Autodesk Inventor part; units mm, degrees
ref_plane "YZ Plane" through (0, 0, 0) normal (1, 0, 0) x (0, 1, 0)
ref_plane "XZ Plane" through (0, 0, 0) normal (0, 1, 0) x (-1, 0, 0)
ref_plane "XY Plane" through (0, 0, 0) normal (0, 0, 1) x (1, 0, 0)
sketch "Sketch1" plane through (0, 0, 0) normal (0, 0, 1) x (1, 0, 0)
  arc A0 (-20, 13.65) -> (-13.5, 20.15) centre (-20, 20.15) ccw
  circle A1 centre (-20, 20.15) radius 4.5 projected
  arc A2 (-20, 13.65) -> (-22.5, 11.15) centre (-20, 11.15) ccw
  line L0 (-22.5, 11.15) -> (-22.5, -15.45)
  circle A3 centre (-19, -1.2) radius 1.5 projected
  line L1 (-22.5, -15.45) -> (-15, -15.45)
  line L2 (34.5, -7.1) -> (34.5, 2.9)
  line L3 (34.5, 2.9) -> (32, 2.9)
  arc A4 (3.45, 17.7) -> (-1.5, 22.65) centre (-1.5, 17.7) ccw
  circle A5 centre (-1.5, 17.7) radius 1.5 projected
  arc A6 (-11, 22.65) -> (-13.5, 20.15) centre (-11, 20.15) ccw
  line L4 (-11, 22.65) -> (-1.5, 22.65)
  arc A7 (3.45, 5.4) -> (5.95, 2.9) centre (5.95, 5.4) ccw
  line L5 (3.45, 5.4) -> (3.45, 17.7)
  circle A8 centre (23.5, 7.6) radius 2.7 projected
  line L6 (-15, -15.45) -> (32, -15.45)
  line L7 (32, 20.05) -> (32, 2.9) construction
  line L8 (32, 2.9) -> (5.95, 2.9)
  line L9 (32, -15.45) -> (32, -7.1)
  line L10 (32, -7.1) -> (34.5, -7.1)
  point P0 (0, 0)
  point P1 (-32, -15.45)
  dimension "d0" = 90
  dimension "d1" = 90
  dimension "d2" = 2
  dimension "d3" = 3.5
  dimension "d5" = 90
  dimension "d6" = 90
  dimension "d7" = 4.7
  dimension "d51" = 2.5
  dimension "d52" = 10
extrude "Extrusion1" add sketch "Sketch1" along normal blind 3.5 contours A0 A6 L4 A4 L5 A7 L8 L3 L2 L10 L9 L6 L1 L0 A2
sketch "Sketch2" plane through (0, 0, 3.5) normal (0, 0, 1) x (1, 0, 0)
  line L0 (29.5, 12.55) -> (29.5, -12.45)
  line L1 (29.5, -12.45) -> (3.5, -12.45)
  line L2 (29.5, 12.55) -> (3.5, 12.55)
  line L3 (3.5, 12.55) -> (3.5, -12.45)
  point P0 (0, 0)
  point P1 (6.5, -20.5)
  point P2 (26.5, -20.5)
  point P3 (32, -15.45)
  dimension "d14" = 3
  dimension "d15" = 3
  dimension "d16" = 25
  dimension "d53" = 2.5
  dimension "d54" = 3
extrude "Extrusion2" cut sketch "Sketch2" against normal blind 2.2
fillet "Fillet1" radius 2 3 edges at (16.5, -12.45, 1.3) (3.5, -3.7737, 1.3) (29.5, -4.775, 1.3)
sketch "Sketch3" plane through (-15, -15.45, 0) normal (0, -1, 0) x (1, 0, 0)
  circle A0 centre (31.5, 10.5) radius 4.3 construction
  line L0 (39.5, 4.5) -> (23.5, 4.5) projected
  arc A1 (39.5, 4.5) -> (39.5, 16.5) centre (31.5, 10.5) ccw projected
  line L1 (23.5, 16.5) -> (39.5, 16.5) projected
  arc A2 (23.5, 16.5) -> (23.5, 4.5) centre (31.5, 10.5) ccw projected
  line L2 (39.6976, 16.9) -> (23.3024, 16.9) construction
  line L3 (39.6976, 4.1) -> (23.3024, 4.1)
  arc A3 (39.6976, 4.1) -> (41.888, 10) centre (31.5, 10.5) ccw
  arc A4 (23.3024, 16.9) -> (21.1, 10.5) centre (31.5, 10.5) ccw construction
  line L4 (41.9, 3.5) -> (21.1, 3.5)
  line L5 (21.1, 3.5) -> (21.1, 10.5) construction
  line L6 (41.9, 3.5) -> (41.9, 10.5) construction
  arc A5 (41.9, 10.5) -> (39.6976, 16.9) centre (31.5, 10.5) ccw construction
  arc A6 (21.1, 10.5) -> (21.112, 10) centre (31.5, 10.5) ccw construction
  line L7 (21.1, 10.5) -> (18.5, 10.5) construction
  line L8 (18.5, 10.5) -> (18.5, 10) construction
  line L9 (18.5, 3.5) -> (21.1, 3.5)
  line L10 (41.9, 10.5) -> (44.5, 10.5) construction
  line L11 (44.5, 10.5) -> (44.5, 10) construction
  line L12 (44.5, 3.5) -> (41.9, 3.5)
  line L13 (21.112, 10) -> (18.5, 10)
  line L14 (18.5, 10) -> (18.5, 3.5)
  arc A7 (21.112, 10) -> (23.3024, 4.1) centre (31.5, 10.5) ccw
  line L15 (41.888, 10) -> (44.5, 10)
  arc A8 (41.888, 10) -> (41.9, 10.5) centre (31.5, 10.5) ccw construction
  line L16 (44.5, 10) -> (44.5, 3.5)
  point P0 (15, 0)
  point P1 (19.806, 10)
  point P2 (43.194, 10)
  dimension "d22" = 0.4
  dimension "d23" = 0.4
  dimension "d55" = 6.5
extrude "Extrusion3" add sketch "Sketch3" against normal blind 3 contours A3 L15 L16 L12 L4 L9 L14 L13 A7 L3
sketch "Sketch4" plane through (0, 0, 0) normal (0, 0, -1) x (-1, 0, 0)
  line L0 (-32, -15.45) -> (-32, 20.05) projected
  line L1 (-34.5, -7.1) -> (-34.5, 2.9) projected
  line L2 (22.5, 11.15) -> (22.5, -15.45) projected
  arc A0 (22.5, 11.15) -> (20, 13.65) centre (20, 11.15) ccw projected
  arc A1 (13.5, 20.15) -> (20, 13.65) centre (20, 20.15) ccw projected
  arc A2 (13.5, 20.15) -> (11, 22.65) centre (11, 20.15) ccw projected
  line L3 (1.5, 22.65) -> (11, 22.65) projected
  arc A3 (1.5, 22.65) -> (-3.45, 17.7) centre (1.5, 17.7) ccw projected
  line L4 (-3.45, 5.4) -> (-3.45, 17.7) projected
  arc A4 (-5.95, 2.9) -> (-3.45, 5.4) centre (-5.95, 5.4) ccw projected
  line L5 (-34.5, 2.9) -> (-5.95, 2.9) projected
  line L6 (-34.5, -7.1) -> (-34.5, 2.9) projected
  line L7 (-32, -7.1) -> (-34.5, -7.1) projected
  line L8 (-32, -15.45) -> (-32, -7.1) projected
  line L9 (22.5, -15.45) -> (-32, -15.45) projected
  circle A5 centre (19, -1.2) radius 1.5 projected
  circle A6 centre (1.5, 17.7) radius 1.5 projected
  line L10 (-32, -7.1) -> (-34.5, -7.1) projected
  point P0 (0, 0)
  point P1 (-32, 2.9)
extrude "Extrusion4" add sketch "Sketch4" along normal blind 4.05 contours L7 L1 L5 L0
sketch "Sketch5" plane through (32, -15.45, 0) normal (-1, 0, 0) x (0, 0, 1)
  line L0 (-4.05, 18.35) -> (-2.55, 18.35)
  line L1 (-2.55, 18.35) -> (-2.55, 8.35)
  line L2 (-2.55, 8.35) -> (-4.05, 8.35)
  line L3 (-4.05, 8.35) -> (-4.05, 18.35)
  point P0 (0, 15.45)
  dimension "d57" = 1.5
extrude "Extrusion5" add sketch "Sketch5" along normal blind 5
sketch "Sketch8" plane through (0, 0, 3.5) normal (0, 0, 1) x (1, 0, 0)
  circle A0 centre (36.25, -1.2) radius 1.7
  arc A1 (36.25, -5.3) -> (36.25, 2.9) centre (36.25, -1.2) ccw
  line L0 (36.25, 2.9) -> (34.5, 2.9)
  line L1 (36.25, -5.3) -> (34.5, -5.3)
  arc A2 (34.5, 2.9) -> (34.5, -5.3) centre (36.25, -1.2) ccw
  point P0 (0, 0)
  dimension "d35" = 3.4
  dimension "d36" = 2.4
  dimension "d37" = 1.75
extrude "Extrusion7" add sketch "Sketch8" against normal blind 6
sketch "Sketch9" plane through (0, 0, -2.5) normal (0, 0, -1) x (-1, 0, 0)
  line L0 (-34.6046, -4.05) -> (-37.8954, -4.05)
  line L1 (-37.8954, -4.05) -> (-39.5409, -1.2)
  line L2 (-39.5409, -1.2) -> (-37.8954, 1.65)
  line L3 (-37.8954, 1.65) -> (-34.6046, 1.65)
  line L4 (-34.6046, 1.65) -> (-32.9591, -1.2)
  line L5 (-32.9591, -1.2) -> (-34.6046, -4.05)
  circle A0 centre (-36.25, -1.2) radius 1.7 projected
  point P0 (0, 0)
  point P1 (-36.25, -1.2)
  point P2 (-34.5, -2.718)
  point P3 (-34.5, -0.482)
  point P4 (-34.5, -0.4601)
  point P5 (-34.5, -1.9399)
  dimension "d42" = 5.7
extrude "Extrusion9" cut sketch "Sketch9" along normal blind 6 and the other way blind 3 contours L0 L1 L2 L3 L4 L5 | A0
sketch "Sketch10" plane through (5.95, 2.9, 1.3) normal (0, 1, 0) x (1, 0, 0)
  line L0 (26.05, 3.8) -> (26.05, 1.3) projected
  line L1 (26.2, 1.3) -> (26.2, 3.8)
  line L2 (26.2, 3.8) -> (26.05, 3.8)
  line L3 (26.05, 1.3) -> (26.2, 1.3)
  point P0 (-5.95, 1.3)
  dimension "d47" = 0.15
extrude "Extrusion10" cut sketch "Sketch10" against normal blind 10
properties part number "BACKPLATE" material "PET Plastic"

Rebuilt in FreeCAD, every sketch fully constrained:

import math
import FreeCAD as App
import Part
import Sketcher

V = App.Vector
Q = App.Units.Quantity


def edges_at(feature, points):
    """Names of the edges that pass closest to the given points."""
    edges = feature.Shape.Edges
    near = lambda p: min(range(len(edges)), key=lambda i: edges[i].distToShape(Part.Vertex(*p))[0])
    return sorted({f"Edge{near(p) + 1}" for p in points})

doc = App.newDocument("Part")
body = doc.addObject("PartDesign::Body", "Body")

# Sketch on XY plane
sketch1 = body.newObject("Sketcher::SketchObject", "Sketch")
sketch1.AttachmentSupport = (doc.getObject("XY_Plane"), [""])
sketch1.MapMode = "FlatFace"
sketch1.addGeometry(Part.ArcOfCircle(Part.Circle(V(-20, 20.1, 0), V(0, 0, 1), 6.5), math.radians(-90), math.radians(0)), False)
sketch1.addGeometry(Part.ArcOfCircle(Part.Circle(V(-20, 11.2, 0), V(0, 0, 1), 2.5), math.radians(90), math.radians(180)), False)
sketch1.addGeometry(Part.LineSegment(V(-22.5, 11.2, 0), V(-22.5, -15.4, 0)), False)
sketch1.addGeometry(Part.LineSegment(V(-22.5, -15.4, 0), V(32, -15.4, 0)), False)
sketch1.addGeometry(Part.LineSegment(V(32, -15.4, 0), V(32, -7.1, 0)), False)
sketch1.addGeometry(Part.LineSegment(V(32, -7.1, 0), V(34.5, -7.1, 0)), False)
sketch1.addGeometry(Part.LineSegment(V(34.5, -7.1, 0), V(34.5, 2.9, 0)), False)
sketch1.addGeometry(Part.LineSegment(V(34.5, 2.9, 0), V(6, 2.9, 0)), False)
sketch1.addGeometry(Part.ArcOfCircle(Part.Circle(V(6, 5.4, 0), V(0, 0, 1), 2.5), math.radians(180), math.radians(270)), False)
sketch1.addGeometry(Part.LineSegment(V(3.5, 5.4, 0), V(3.5, 17.7, 0)), False)
sketch1.addGeometry(Part.ArcOfCircle(Part.Circle(V(-1.5, 17.7, 0), V(0, 0, 1), 5), math.radians(0), math.radians(90)), False)
sketch1.addGeometry(Part.LineSegment(V(-1.5, 22.6, 0), V(-11, 22.6, 0)), False)
sketch1.addGeometry(Part.ArcOfCircle(Part.Circle(V(-11, 20.1, 0), V(0, 0, 1), 2.5), math.radians(90), math.radians(180)), False)
sketch1.addGeometry(Part.Circle(V(-19, -1.2, 0), V(0, 0, 1), 1.5), False)
sketch1.addGeometry(Part.Circle(V(-1.5, 17.7, 0), V(0, 0, 1), 1.5), False)
sketch1.addConstraint(Sketcher.Constraint("Tangent", 0, 1, 1, 1))
sketch1.addConstraint(Sketcher.Constraint("Tangent", 1, 2, 2, 1))
sketch1.addConstraint(Sketcher.Constraint("Coincident", 2, 2, 3, 1))
sketch1.addConstraint(Sketcher.Constraint("Coincident", 3, 2, 4, 1))
sketch1.addConstraint(Sketcher.Constraint("Coincident", 4, 2, 5, 1))
sketch1.addConstraint(Sketcher.Constraint("Coincident", 5, 2, 6, 1))
sketch1.addConstraint(Sketcher.Constraint("Coincident", 6, 2, 7, 1))
sketch1.addConstraint(Sketcher.Constraint("Tangent", 7, 2, 8, 2))
sketch1.addConstraint(Sketcher.Constraint("Tangent", 8, 1, 9, 1))
sketch1.addConstraint(Sketcher.Constraint("Tangent", 9, 2, 10, 1))
sketch1.addConstraint(Sketcher.Constraint("Tangent", 10, 2, 11, 1))
sketch1.addConstraint(Sketcher.Constraint("Tangent", 11, 2, 12, 1))
sketch1.addConstraint(Sketcher.Constraint("Tangent", 12, 2, 0, 2))
sketch1.addConstraint(Sketcher.Constraint("Vertical", 2))
sketch1.addConstraint(Sketcher.Constraint("Horizontal", 3))
sketch1.addConstraint(Sketcher.Constraint("Vertical", 4))
sketch1.addConstraint(Sketcher.Constraint("Horizontal", 5))
sketch1.addConstraint(Sketcher.Constraint("Vertical", 6))
sketch1.addConstraint(Sketcher.Constraint("Horizontal", 7))
sketch1.addConstraint(Sketcher.Constraint("Vertical", 9))
sketch1.addConstraint(Sketcher.Constraint("Horizontal", 11))
sketch1.addConstraint(Sketcher.Constraint("Coincident", 14, 3, 10, 3))
sketch1.addConstraint(Sketcher.Constraint("Equal", 1, 8))
sketch1.addConstraint(Sketcher.Constraint("Equal", 8, 12))
sketch1.addConstraint(Sketcher.Constraint("Equal", 13, 14))
sketch1.addConstraint(Sketcher.Constraint("Horizontal", 0, 3, 12, 3))
sketch1.addConstraint(Sketcher.Constraint("Vertical", 0, 3, 1, 3))
sketch1.addConstraint(Sketcher.Constraint("Radius", 1, 2.5))
sketch1.addConstraint(Sketcher.Constraint("DistanceY", 6, 1, 6, 2, 10.0))
sketch1.addConstraint(Sketcher.Constraint("Diameter", 13, 3.0))
sketch1.addConstraint(Sketcher.Constraint("DistanceX", 5, 1, 5, 2, 2.5))
sketch1.addConstraint(Sketcher.Constraint("Radius", 0, 6.5))
sketch1.addConstraint(Sketcher.Constraint("DistanceX", 1, 2, 13, 3, 3.5))
sketch1.addConstraint(Sketcher.Constraint("Radius", 10, 4.95))
sketch1.addConstraint(Sketcher.Constraint("DistanceX", 3, 1, 3, 2, 54.5))
sketch1.addConstraint(Sketcher.Constraint("DistanceX", 11, 2, 11, 1, 9.5))
sketch1.addConstraint(Sketcher.Constraint("DistanceY", 2, 2, 2, 1, 26.6))
sketch1.addConstraint(Sketcher.Constraint("DistanceY", 9, 1, 9, 2, 12.3))
sketch1.addConstraint(Sketcher.Constraint("DistanceX", 0, 3, -1, 1, 20.0))
sketch1.addConstraint(Sketcher.Constraint("DistanceY", -1, 1, 8, 3, 5.4))
sketch1.addConstraint(Sketcher.Constraint("DistanceY", 13, 3, -1, 1, 1.2))
pad1 = body.newObject("PartDesign::Pad", "Pad")
pad1.Profile = sketch1
pad1.Length = 3.5

# Sketch on XY plane
sketch2 = body.newObject("Sketcher::SketchObject", "Sketch001")
sketch2.AttachmentSupport = (doc.getObject("XY_Plane"), [""])
sketch2.MapMode = "FlatFace"
sketch2.AttachmentOffset = App.Placement(V(0, 0, 3.5), App.Rotation())
sketch2.addGeometry(Part.LineSegment(V(30, -12, 0), V(30, 13, 0)), False)
sketch2.addGeometry(Part.LineSegment(V(30, 13, 0), V(4, 13, 0)), False)
sketch2.addGeometry(Part.LineSegment(V(4, 13, 0), V(4, -12, 0)), False)
sketch2.addGeometry(Part.LineSegment(V(4, -12, 0), V(30, -12, 0)), False)
sketch2.addConstraint(Sketcher.Constraint("Coincident", 0, 2, 1, 1))
sketch2.addConstraint(Sketcher.Constraint("Coincident", 1, 2, 2, 1))
sketch2.addConstraint(Sketcher.Constraint("Coincident", 2, 2, 3, 1))
sketch2.addConstraint(Sketcher.Constraint("Coincident", 3, 2, 0, 1))
sketch2.addConstraint(Sketcher.Constraint("Vertical", 0))
sketch2.addConstraint(Sketcher.Constraint("Horizontal", 1))
sketch2.addConstraint(Sketcher.Constraint("Vertical", 2))
sketch2.addConstraint(Sketcher.Constraint("Horizontal", 3))
sketch2.addConstraint(Sketcher.Constraint("DistanceY", 0, 1, 0, 2, 25.0))
sketch2.addConstraint(Sketcher.Constraint("DistanceX", 1, 2, 1, 1, 26.0))
sketch2.addConstraint(Sketcher.Constraint("DistanceX", -1, 1, 0, 2, 29.5))
sketch2.addConstraint(Sketcher.Constraint("DistanceY", -1, 1, 0, 2, 12.55))
pocket1 = body.newObject("PartDesign::Pocket", "Pocket")
pocket1.Profile = sketch2
pocket1.Length = 2.2
doc.recompute()

fillet = body.newObject("PartDesign::Fillet", "Fillet")
fillet.Base = (pocket1, edges_at(pocket1, [(16.5, -12.45, 1.3), (3.5, -3.774, 1.3), (29.5, -4.775, 1.3)]))
fillet.Radius = 2

# Sketch on XZ plane
sketch3 = body.newObject("Sketcher::SketchObject", "Sketch002")
sketch3.AttachmentSupport = (doc.getObject("XZ_Plane"), [""])
sketch3.MapMode = "FlatFace"
sketch3.AttachmentOffset = App.Placement(V(0, 0, 15.45), App.Rotation())
sketch3.addGeometry(Part.ArcOfCircle(Part.Circle(V(16.5, 10.5, 0), V(0, 0, 1), 10.4), math.radians(-38), math.radians(-3)), False)
sketch3.addGeometry(Part.LineSegment(V(24.7, 4.1, 0), V(8.3, 4.1, 0)), False)
sketch3.addGeometry(Part.ArcOfCircle(Part.Circle(V(16.5, 10.5, 0), V(0, 0, 1), 10.4), math.radians(-177), math.radians(-142)), False)
sketch3.addGeometry(Part.LineSegment(V(6.1, 10, 0), V(3.5, 10, 0)), False)
sketch3.addGeometry(Part.LineSegment(V(3.5, 10, 0), V(3.5, 3.5, 0)), False)
sketch3.addGeometry(Part.LineSegment(V(3.5, 3.5, 0), V(29.5, 3.5, 0)), False)
sketch3.addGeometry(Part.LineSegment(V(29.5, 3.5, 0), V(29.5, 10, 0)), False)
sketch3.addGeometry(Part.LineSegment(V(29.5, 10, 0), V(26.9, 10, 0)), False)
sketch3.addConstraint(Sketcher.Constraint("Coincident", 0, 1, 1, 1))
sketch3.addConstraint(Sketcher.Constraint("Coincident", 1, 2, 2, 2))
sketch3.addConstraint(Sketcher.Constraint("Coincident", 2, 1, 3, 1))
sketch3.addConstraint(Sketcher.Constraint("Coincident", 3, 2, 4, 1))
sketch3.addConstraint(Sketcher.Constraint("Coincident", 4, 2, 5, 1))
sketch3.addConstraint(Sketcher.Constraint("Coincident", 5, 2, 6, 1))
sketch3.addConstraint(Sketcher.Constraint("Coincident", 6, 2, 7, 1))
sketch3.addConstraint(Sketcher.Constraint("Coincident", 7, 2, 0, 2))
sketch3.addConstraint(Sketcher.Constraint("Horizontal", 1))
sketch3.addConstraint(Sketcher.Constraint("Horizontal", 3))
sketch3.addConstraint(Sketcher.Constraint("Vertical", 4))
sketch3.addConstraint(Sketcher.Constraint("Horizontal", 5))
sketch3.addConstraint(Sketcher.Constraint("Vertical", 6))
sketch3.addConstraint(Sketcher.Constraint("Horizontal", 7))
sketch3.addConstraint(Sketcher.Constraint("Coincident", 2, 3, 0, 3))
sketch3.addConstraint(Sketcher.Constraint("Equal", 0, 2))
sketch3.addConstraint(Sketcher.Constraint("Horizontal", 3, 2, 6, 2))
sketch3.addConstraint(Sketcher.Constraint("Equal", 3, 7))
sketch3.addConstraint(Sketcher.Constraint("DistanceY", 4, 2, 4, 1, 6.5))
sketch3.addConstraint(Sketcher.Constraint("Radius", 0, 10.4))
sketch3.addConstraint(Sketcher.Constraint("DistanceX", 5, 1, 5, 2, 26.0))
sketch3.addConstraint(Sketcher.Constraint("DistanceY", -1, 1, 2, 1, 10.0))
sketch3.addConstraint(Sketcher.Constraint("DistanceY", 4, 2, 0, 3, 7.0))
sketch3.addConstraint(Sketcher.Constraint("DistanceX", -1, 1, 0, 3, 16.5))
sketch3.addConstraint(Sketcher.Constraint("DistanceY", -1, 1, 0, 1, 4.1))
pad2 = body.newObject("PartDesign::Pad", "Pad001")
pad2.Profile = sketch3
pad2.Length = 3
pad2.Reversed = True

# Sketch on XY plane
sketch4 = body.newObject("Sketcher::SketchObject", "Sketch003")
sketch4.AttachmentSupport = (doc.getObject("XY_Plane"), [""])
sketch4.MapMode = "FlatFace"
sketch4.addGeometry(Part.LineSegment(V(34.5, -7.1, 0), V(32, -7.1, 0)), False)
sketch4.addGeometry(Part.LineSegment(V(32, -7.1, 0), V(32, 2.9, 0)), False)
sketch4.addGeometry(Part.LineSegment(V(32, 2.9, 0), V(34.5, 2.9, 0)), False)
sketch4.addGeometry(Part.LineSegment(V(34.5, 2.9, 0), V(34.5, -7.1, 0)), False)
sketch4.addConstraint(Sketcher.Constraint("Coincident", 0, 2, 1, 1))
sketch4.addConstraint(Sketcher.Constraint("Coincident", 1, 2, 2, 1))
sketch4.addConstraint(Sketcher.Constraint("Coincident", 2, 2, 3, 1))
sketch4.addConstraint(Sketcher.Constraint("Coincident", 3, 2, 0, 1))
sketch4.addConstraint(Sketcher.Constraint("Horizontal", 0))
sketch4.addConstraint(Sketcher.Constraint("Vertical", 1))
sketch4.addConstraint(Sketcher.Constraint("Horizontal", 2))
sketch4.addConstraint(Sketcher.Constraint("Vertical", 3))
sketch4.addConstraint(Sketcher.Constraint("DistanceY", 1, 1, 1, 2, 10.0))
sketch4.addConstraint(Sketcher.Constraint("DistanceX", 0, 2, 0, 1, 2.5))
sketch4.addConstraint(Sketcher.Constraint("DistanceX", -1, 1, 0, 2, 32.0))
sketch4.addConstraint(Sketcher.Constraint("DistanceY", 0, 2, -1, 1, 7.1))
pad3 = body.newObject("PartDesign::Pad", "Pad002")
pad3.Profile = sketch4
pad3.Length = 4.05
pad3.Reversed = True

# Sketch on YZ plane
sketch5 = body.newObject("Sketcher::SketchObject", "Sketch004")
sketch5.AttachmentSupport = (doc.getObject("YZ_Plane"), [""])
sketch5.MapMode = "FlatFace"
sketch5.AttachmentOffset = App.Placement(V(0, 0, 32), App.Rotation())
sketch5.addGeometry(Part.LineSegment(V(2.9, -2.5, 0), V(2.9, -4, 0)), False)
sketch5.addGeometry(Part.LineSegment(V(2.9, -4, 0), V(-7.1, -4, 0)), False)
sketch5.addGeometry(Part.LineSegment(V(-7.1, -4, 0), V(-7.1, -2.5, 0)), False)
sketch5.addGeometry(Part.LineSegment(V(-7.1, -2.5, 0), V(2.9, -2.5, 0)), False)
sketch5.addConstraint(Sketcher.Constraint("Coincident", 0, 2, 1, 1))
sketch5.addConstraint(Sketcher.Constraint("Coincident", 1, 2, 2, 1))
sketch5.addConstraint(Sketcher.Constraint("Coincident", 2, 2, 3, 1))
sketch5.addConstraint(Sketcher.Constraint("Coincident", 3, 2, 0, 1))
sketch5.addConstraint(Sketcher.Constraint("Vertical", 0))
sketch5.addConstraint(Sketcher.Constraint("Horizontal", 1))
sketch5.addConstraint(Sketcher.Constraint("Vertical", 2))
sketch5.addConstraint(Sketcher.Constraint("Horizontal", 3))
sketch5.addConstraint(Sketcher.Constraint("DistanceY", 0, 2, 0, 1, 1.5))
sketch5.addConstraint(Sketcher.Constraint("DistanceX", 1, 2, 1, 1, 10.0))
sketch5.addConstraint(Sketcher.Constraint("DistanceX", -1, 1, 0, 2, 2.9))
sketch5.addConstraint(Sketcher.Constraint("DistanceY", 0, 2, -1, 1, 4.05))
pad4 = body.newObject("PartDesign::Pad", "Pad003")
pad4.Profile = sketch5
pad4.Length = 5
pad4.Reversed = True

# Sketch on XY plane
sketch6 = body.newObject("Sketcher::SketchObject", "Sketch005")
sketch6.AttachmentSupport = (doc.getObject("XY_Plane"), [""])
sketch6.MapMode = "FlatFace"
sketch6.AttachmentOffset = App.Placement(V(0, 0, 3.5), App.Rotation())
sketch6.addGeometry(Part.LineSegment(V(34.5, -5.3, 0), V(36.2, -5.3, 0)), False)
sketch6.addGeometry(Part.ArcOfCircle(Part.Circle(V(36.2, -1.2, 0), V(0, 0, 1), 4.1), math.radians(-90), math.radians(90)), False)
sketch6.addGeometry(Part.LineSegment(V(36.2, 2.9, 0), V(34.5, 2.9, 0)), False)
sketch6.addGeometry(Part.ArcOfCircle(Part.Circle(V(36.2, -1.2, 0), V(0, 0, 1), 4.5), math.radians(113), math.radians(247)), False)
sketch6.addGeometry(Part.Circle(V(36.2, -1.2, 0), V(0, 0, 1), 1.7), False)
sketch6.addConstraint(Sketcher.Constraint("Tangent", 0, 2, 1, 1))
sketch6.addConstraint(Sketcher.Constraint("Tangent", 1, 2, 2, 1))
sketch6.addConstraint(Sketcher.Constraint("Coincident", 2, 2, 3, 1))
sketch6.addConstraint(Sketcher.Constraint("Coincident", 3, 2, 0, 1))
sketch6.addConstraint(Sketcher.Constraint("Horizontal", 0))
sketch6.addConstraint(Sketcher.Constraint("Horizontal", 2))
sketch6.addConstraint(Sketcher.Constraint("Coincident", 3, 3, 1, 3))
sketch6.addConstraint(Sketcher.Constraint("Coincident", 4, 3, 1, 3))
sketch6.addConstraint(Sketcher.Constraint("Diameter", 4, 3.4))
sketch6.addConstraint(Sketcher.Constraint("DistanceX", 0, 1, 0, 2, 1.75))
sketch6.addConstraint(Sketcher.Constraint("Radius", 1, 4.1))
sketch6.addConstraint(Sketcher.Constraint("DistanceY", 1, 3, -1, 1, 1.2))
sketch6.addConstraint(Sketcher.Constraint("DistanceX", -1, 1, 2, 2, 34.5))
pad5 = body.newObject("PartDesign::Pad", "Pad004")
pad5.Profile = sketch6
pad5.Length = 6
pad5.Reversed = True

# Sketch on XY plane
sketch7 = body.newObject("Sketcher::SketchObject", "Sketch006")
sketch7.AttachmentSupport = (doc.getObject("XY_Plane"), [""])
sketch7.MapMode = "FlatFace"
sketch7.AttachmentOffset = App.Placement(V(0, 0, -2.5), App.Rotation())
sketch7.addGeometry(Part.LineSegment(V(37.9, -4, 0), V(34.6, -4, 0)), False)
sketch7.addGeometry(Part.LineSegment(V(34.6, -4, 0), V(33, -1.2, 0)), False)
sketch7.addGeometry(Part.LineSegment(V(33, -1.2, 0), V(34.6, 1.6, 0)), False)
sketch7.addGeometry(Part.LineSegment(V(34.6, 1.6, 0), V(37.9, 1.6, 0)), False)
sketch7.addGeometry(Part.LineSegment(V(37.9, 1.6, 0), V(39.5, -1.2, 0)), False)
sketch7.addGeometry(Part.LineSegment(V(39.5, -1.2, 0), V(37.9, -4, 0)), False)
sketch7.addConstraint(Sketcher.Constraint("Coincident", 0, 2, 1, 1))
sketch7.addConstraint(Sketcher.Constraint("Coincident", 1, 2, 2, 1))
sketch7.addConstraint(Sketcher.Constraint("Coincident", 2, 2, 3, 1))
sketch7.addConstraint(Sketcher.Constraint("Coincident", 3, 2, 4, 1))
sketch7.addConstraint(Sketcher.Constraint("Coincident", 4, 2, 5, 1))
sketch7.addConstraint(Sketcher.Constraint("Coincident", 5, 2, 0, 1))
sketch7.addConstraint(Sketcher.Constraint("Horizontal", 0))
sketch7.addConstraint(Sketcher.Constraint("Horizontal", 3))
sketch7.addConstraint(Sketcher.Constraint("Parallel", 1, 4))
sketch7.addConstraint(Sketcher.Constraint("Parallel", 2, 5))
sketch7.addConstraint(Sketcher.Constraint("Horizontal", 1, 2, 4, 2))
sketch7.addConstraint(Sketcher.Constraint("Vertical", 0, 2, 2, 2))
sketch7.addConstraint(Sketcher.Constraint("Vertical", 3, 2, 5, 2))
sketch7.addConstraint(Sketcher.Constraint("DistanceY", 0, 2, 2, 2, 5.7))
sketch7.addConstraint(Sketcher.Constraint("Angle", 1, Q("120.0008 deg")))
sketch7.addConstraint(Sketcher.Constraint("DistanceY", 1, 2, -1, 1, 1.2))
sketch7.addConstraint(Sketcher.Constraint("DistanceX", 0, 2, 0, 1, 3.2908))
sketch7.addConstraint(Sketcher.Constraint("DistanceX", -1, 1, 1, 2, 32.959))
pocket2 = body.newObject("PartDesign::Pocket", "Pocket001")
pocket2.Profile = sketch7
pocket2.Type = "TwoLengths"
pocket2.Length = 6
pocket2.Length2 = 3

# Sketch on XZ plane
sketch8 = body.newObject("Sketcher::SketchObject", "Sketch007")
sketch8.AttachmentSupport = (doc.getObject("XZ_Plane"), [""])
sketch8.MapMode = "FlatFace"
sketch8.AttachmentOffset = App.Placement(V(0, 0, -2.9), App.Rotation())
sketch8.addGeometry(Part.LineSegment(V(32.15, -2.5, 0), V(32, -2.5, 0)), False)
sketch8.addGeometry(Part.LineSegment(V(32, -2.5, 0), V(32, 0, 0)), False)
sketch8.addGeometry(Part.LineSegment(V(32, 0, 0), V(32.15, 0, 0)), False)
sketch8.addGeometry(Part.LineSegment(V(32.15, 0, 0), V(32.15, -2.5, 0)), False)
sketch8.addConstraint(Sketcher.Constraint("Coincident", 0, 2, 1, 1))
sketch8.addConstraint(Sketcher.Constraint("Coincident", 1, 2, 2, 1))
sketch8.addConstraint(Sketcher.Constraint("Coincident", 2, 2, 3, 1))
sketch8.addConstraint(Sketcher.Constraint("Coincident", 3, 2, 0, 1))
sketch8.addConstraint(Sketcher.Constraint("Horizontal", 0))
sketch8.addConstraint(Sketcher.Constraint("Vertical", 1))
sketch8.addConstraint(Sketcher.Constraint("Horizontal", 2))
sketch8.addConstraint(Sketcher.Constraint("Vertical", 3))
sketch8.addConstraint(Sketcher.Constraint("PointOnObject", 1, 2, -1))
sketch8.addConstraint(Sketcher.Constraint("DistanceX", 0, 2, 0, 1, 0.15))
sketch8.addConstraint(Sketcher.Constraint("DistanceY", 1, 1, 1, 2, 2.5))
sketch8.addConstraint(Sketcher.Constraint("DistanceX", -1, 1, 0, 2, 32.0))
pocket3 = body.newObject("PartDesign::Pocket", "Pocket002")
pocket3.Profile = sketch8
pocket3.Length = 10
pocket3.Reversed = True

doc.recompute()
